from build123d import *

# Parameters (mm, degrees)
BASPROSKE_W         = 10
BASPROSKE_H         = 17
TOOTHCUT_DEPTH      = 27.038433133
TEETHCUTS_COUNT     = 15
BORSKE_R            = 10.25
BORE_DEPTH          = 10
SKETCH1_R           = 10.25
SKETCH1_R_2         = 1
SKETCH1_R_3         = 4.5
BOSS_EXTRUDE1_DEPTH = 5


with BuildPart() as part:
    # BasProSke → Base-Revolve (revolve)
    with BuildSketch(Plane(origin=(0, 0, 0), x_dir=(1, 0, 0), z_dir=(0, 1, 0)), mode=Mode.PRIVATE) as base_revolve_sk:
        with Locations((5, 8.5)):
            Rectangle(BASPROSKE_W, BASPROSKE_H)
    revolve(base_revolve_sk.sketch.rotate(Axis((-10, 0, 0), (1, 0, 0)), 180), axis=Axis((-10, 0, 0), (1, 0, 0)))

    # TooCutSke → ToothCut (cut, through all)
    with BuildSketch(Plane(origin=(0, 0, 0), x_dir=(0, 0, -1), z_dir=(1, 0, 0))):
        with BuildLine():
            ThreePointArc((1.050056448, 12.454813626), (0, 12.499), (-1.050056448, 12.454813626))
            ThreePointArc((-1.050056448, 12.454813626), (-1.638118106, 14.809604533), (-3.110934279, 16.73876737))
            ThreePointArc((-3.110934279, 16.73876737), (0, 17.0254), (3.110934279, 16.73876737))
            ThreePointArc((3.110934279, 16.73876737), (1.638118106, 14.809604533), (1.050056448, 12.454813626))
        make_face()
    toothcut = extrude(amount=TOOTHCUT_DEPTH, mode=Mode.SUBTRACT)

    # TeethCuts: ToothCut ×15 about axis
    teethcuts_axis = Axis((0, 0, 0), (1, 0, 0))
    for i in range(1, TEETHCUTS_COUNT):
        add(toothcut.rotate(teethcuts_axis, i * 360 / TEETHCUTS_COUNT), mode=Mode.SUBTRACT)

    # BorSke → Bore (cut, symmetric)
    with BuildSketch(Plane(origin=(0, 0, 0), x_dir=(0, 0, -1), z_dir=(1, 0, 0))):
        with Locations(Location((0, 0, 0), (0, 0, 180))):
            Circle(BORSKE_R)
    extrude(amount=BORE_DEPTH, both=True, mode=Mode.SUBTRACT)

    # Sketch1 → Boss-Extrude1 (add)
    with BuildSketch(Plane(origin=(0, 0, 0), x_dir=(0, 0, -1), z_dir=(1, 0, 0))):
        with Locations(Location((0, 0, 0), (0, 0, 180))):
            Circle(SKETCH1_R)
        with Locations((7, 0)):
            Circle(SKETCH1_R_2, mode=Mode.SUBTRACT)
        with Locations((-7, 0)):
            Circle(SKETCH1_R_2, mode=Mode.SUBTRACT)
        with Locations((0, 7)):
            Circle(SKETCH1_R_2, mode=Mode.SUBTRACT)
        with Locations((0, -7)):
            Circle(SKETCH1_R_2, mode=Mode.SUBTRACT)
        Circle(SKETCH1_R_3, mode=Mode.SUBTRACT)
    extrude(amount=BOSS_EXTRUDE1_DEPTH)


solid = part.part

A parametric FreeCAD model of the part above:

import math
import FreeCAD as App
import Part
import Sketcher

V = App.Vector
Q = App.Units.Quantity


def add_polygon(sketch, points):
    """Adds a closed chain of lines whose ends are joined by coincident constraints."""
    first, n = sketch.GeometryCount, len(points)
    for a, b in zip(points, points[1:] + points[:1]):
        sketch.addGeometry(Part.LineSegment(App.Vector(*a, 0), App.Vector(*b, 0)), False)
    for i in range(n):
        sketch.addConstraint(Sketcher.Constraint("Coincident", first + i, 2, first + (i + 1) % n, 1))

doc = App.newDocument("Part")
body = doc.addObject("PartDesign::Body", "Body")

sketch1 = body.newObject("Sketcher::SketchObject", "Sketch")
sketch1.AttachmentSupport = (doc.getObject("XZ_Plane"), [""])
sketch1.MapMode = "FlatFace"
add_polygon(sketch1, [(0, -17), (0, 0), (10, 0), (10, -17)])
sketch1.addConstraint(Sketcher.Constraint("Vertical", 0))
sketch1.addConstraint(Sketcher.Constraint("Horizontal", 1))
sketch1.addConstraint(Sketcher.Constraint("Vertical", 2))
sketch1.addConstraint(Sketcher.Constraint("Horizontal", 3))
sketch1.addConstraint(Sketcher.Constraint("Coincident", 0, 2, -1, 1))
sketch1.addConstraint(Sketcher.Constraint("DistanceX", 1, 1, 1, 2, Q("10 mm")))
sketch1.addConstraint(Sketcher.Constraint("DistanceY", 0, 1, 0, 2, Q("17 mm")))
revolution = body.newObject("PartDesign::Revolution", "Revolution")
revolution.Profile = sketch1
revolution.ReferenceAxis = (sketch1, ["H_Axis"])
revolution.Angle = 360

sketch2 = body.newObject("Sketcher::SketchObject", "Sketch001")
sketch2.AttachmentSupport = (doc.getObject("YZ_Plane"), [""])
sketch2.MapMode = "FlatFace"
sketch2.addGeometry(Part.ArcOfCircle(Part.Circle(V(0, 0, 0), V(0, 0, 1), 12.5), math.radians(-4.82), math.radians(4.82)), False)
sketch2.addGeometry(Part.ArcOfCircle(Part.Circle(V(12.2, -7, 0), V(0, 0, 1), 6), math.radians(41), math.radians(88)), False)
sketch2.addGeometry(Part.ArcOfCircle(Part.Circle(V(0, 0, 0), V(0, 0, 1), 17), math.radians(-11), math.radians(11)), False)
sketch2.addGeometry(Part.ArcOfCircle(Part.Circle(V(12.2, 7, 0), V(0, 0, 1), 6), math.radians(-88), math.radians(-41)), False)
sketch2.addConstraint(Sketcher.Constraint("Coincident", 0, 1, 1, 2))
sketch2.addConstraint(Sketcher.Constraint("Coincident", 1, 1, 2, 1))
sketch2.addConstraint(Sketcher.Constraint("Coincident", 2, 2, 3, 2))
sketch2.addConstraint(Sketcher.Constraint("Coincident", 3, 1, 0, 2))
sketch2.addConstraint(Sketcher.Constraint("Coincident", 0, 3, -1, 1))
sketch2.addConstraint(Sketcher.Constraint("Coincident", 2, 3, -1, 1))
sketch2.addConstraint(Sketcher.Constraint("Equal", 1, 3))
sketch2.addConstraint(Sketcher.Constraint("Symmetric", 1, 3, 3, 3, -1))
sketch2.addConstraint(Sketcher.Constraint("Radius", 1, Q("6 mm")))
sketch2.addConstraint(Sketcher.Constraint("Radius", 0, Q("12.499 mm")))
sketch2.addConstraint(Sketcher.Constraint("Radius", 2, Q("17.0254 mm")))
sketch2.addConstraint(Sketcher.Constraint("DistanceY", 1, 3, 3, 3, Q("14.089999 mm")))
sketch2.addConstraint(Sketcher.Constraint("DistanceX", -1, 1, 1, 3, Q("12.208521 mm")))
pocket1 = body.newObject("PartDesign::Pocket", "Pocket")
pocket1.Profile = sketch2
pocket1.Type = "ThroughAll"
pocket1.Reversed = True
doc.recompute()

polarpattern = body.newObject("PartDesign::PolarPattern", "PolarPattern")
polarpattern.Originals = [pocket1]
polarpattern.Axis = (doc.getObject("X_Axis"), [""])
polarpattern.Angle = 360
polarpattern.Occurrences = 15
body.Tip = polarpattern

sketch3 = body.newObject("Sketcher::SketchObject", "Sketch002")
sketch3.AttachmentSupport = (doc.getObject("YZ_Plane"), [""])
sketch3.MapMode = "FlatFace"
sketch3.addGeometry(Part.Circle(V(0, 0, 0), V(0, 0, 1), 10), False)
sketch3.addConstraint(Sketcher.Constraint("Coincident", 0, 3, -1, 1))
sketch3.addConstraint(Sketcher.Constraint("Diameter", 0, Q("20.5 mm")))
pocket2 = body.newObject("PartDesign::Pocket", "Pocket001")
pocket2.Profile = sketch3
pocket2.Length = 20
pocket2.Midplane = True

sketch4 = body.newObject("Sketcher::SketchObject", "Sketch003")
sketch4.AttachmentSupport = (doc.getObject("YZ_Plane"), [""])
sketch4.MapMode = "FlatFace"
sketch4.addGeometry(Part.Circle(V(0, 0, 0), V(0, 0, 1), 10.2), False)
sketch4.addGeometry(Part.Circle(V(7, 0, 0), V(0, 0, 1), 1), False)
sketch4.addGeometry(Part.Circle(V(0, -7, 0), V(0, 0, 1), 1), False)
sketch4.addGeometry(Part.Circle(V(-7, 0, 0), V(0, 0, 1), 1), False)
sketch4.addGeometry(Part.Circle(V(0, 0, 0), V(0, 0, 1), 4.5), False)
sketch4.addGeometry(Part.Circle(V(0, 7, 0), V(0, 0, 1), 1), False)
sketch4.addConstraint(Sketcher.Constraint("Coincident", 0, 3, -1, 1))
sketch4.addConstraint(Sketcher.Constraint("Coincident", 4, 3, -1, 1))
sketch4.addConstraint(Sketcher.Constraint("Equal", 1, 2))
sketch4.addConstraint(Sketcher.Constraint("Equal", 2, 3))
sketch4.addConstraint(Sketcher.Constraint("Equal", 3, 5))
sketch4.addConstraint(Sketcher.Constraint("Symmetric", 1, 3, 3, 3, -1, 1))
sketch4.addConstraint(Sketcher.Constraint("Symmetric", 2, 3, 5, 3, -1, 1))
sketch4.addConstraint(Sketcher.Constraint("PointOnObject", 1, 3, -1))
sketch4.addConstraint(Sketcher.Constraint("PointOnObject", 2, 3, -2))
sketch4.addConstraint(Sketcher.Constraint("Diameter", 1, Q("2 mm")))
sketch4.addConstraint(Sketcher.Constraint("Diameter", 4, Q("9 mm")))
sketch4.addConstraint(Sketcher.Constraint("Diameter", 0, Q("20.5 mm")))
sketch4.addConstraint(Sketcher.Constraint("DistanceX", -1, 1, 1, 3, Q("7 mm")))
sketch4.addConstraint(Sketcher.Constraint("DistanceY", 2, 3, -1, 1, Q("7 mm")))
pad1 = body.newObject("PartDesign::Pad", "Pad")
pad1.Profile = sketch4
pad1.Length = 5

doc.recompute()
